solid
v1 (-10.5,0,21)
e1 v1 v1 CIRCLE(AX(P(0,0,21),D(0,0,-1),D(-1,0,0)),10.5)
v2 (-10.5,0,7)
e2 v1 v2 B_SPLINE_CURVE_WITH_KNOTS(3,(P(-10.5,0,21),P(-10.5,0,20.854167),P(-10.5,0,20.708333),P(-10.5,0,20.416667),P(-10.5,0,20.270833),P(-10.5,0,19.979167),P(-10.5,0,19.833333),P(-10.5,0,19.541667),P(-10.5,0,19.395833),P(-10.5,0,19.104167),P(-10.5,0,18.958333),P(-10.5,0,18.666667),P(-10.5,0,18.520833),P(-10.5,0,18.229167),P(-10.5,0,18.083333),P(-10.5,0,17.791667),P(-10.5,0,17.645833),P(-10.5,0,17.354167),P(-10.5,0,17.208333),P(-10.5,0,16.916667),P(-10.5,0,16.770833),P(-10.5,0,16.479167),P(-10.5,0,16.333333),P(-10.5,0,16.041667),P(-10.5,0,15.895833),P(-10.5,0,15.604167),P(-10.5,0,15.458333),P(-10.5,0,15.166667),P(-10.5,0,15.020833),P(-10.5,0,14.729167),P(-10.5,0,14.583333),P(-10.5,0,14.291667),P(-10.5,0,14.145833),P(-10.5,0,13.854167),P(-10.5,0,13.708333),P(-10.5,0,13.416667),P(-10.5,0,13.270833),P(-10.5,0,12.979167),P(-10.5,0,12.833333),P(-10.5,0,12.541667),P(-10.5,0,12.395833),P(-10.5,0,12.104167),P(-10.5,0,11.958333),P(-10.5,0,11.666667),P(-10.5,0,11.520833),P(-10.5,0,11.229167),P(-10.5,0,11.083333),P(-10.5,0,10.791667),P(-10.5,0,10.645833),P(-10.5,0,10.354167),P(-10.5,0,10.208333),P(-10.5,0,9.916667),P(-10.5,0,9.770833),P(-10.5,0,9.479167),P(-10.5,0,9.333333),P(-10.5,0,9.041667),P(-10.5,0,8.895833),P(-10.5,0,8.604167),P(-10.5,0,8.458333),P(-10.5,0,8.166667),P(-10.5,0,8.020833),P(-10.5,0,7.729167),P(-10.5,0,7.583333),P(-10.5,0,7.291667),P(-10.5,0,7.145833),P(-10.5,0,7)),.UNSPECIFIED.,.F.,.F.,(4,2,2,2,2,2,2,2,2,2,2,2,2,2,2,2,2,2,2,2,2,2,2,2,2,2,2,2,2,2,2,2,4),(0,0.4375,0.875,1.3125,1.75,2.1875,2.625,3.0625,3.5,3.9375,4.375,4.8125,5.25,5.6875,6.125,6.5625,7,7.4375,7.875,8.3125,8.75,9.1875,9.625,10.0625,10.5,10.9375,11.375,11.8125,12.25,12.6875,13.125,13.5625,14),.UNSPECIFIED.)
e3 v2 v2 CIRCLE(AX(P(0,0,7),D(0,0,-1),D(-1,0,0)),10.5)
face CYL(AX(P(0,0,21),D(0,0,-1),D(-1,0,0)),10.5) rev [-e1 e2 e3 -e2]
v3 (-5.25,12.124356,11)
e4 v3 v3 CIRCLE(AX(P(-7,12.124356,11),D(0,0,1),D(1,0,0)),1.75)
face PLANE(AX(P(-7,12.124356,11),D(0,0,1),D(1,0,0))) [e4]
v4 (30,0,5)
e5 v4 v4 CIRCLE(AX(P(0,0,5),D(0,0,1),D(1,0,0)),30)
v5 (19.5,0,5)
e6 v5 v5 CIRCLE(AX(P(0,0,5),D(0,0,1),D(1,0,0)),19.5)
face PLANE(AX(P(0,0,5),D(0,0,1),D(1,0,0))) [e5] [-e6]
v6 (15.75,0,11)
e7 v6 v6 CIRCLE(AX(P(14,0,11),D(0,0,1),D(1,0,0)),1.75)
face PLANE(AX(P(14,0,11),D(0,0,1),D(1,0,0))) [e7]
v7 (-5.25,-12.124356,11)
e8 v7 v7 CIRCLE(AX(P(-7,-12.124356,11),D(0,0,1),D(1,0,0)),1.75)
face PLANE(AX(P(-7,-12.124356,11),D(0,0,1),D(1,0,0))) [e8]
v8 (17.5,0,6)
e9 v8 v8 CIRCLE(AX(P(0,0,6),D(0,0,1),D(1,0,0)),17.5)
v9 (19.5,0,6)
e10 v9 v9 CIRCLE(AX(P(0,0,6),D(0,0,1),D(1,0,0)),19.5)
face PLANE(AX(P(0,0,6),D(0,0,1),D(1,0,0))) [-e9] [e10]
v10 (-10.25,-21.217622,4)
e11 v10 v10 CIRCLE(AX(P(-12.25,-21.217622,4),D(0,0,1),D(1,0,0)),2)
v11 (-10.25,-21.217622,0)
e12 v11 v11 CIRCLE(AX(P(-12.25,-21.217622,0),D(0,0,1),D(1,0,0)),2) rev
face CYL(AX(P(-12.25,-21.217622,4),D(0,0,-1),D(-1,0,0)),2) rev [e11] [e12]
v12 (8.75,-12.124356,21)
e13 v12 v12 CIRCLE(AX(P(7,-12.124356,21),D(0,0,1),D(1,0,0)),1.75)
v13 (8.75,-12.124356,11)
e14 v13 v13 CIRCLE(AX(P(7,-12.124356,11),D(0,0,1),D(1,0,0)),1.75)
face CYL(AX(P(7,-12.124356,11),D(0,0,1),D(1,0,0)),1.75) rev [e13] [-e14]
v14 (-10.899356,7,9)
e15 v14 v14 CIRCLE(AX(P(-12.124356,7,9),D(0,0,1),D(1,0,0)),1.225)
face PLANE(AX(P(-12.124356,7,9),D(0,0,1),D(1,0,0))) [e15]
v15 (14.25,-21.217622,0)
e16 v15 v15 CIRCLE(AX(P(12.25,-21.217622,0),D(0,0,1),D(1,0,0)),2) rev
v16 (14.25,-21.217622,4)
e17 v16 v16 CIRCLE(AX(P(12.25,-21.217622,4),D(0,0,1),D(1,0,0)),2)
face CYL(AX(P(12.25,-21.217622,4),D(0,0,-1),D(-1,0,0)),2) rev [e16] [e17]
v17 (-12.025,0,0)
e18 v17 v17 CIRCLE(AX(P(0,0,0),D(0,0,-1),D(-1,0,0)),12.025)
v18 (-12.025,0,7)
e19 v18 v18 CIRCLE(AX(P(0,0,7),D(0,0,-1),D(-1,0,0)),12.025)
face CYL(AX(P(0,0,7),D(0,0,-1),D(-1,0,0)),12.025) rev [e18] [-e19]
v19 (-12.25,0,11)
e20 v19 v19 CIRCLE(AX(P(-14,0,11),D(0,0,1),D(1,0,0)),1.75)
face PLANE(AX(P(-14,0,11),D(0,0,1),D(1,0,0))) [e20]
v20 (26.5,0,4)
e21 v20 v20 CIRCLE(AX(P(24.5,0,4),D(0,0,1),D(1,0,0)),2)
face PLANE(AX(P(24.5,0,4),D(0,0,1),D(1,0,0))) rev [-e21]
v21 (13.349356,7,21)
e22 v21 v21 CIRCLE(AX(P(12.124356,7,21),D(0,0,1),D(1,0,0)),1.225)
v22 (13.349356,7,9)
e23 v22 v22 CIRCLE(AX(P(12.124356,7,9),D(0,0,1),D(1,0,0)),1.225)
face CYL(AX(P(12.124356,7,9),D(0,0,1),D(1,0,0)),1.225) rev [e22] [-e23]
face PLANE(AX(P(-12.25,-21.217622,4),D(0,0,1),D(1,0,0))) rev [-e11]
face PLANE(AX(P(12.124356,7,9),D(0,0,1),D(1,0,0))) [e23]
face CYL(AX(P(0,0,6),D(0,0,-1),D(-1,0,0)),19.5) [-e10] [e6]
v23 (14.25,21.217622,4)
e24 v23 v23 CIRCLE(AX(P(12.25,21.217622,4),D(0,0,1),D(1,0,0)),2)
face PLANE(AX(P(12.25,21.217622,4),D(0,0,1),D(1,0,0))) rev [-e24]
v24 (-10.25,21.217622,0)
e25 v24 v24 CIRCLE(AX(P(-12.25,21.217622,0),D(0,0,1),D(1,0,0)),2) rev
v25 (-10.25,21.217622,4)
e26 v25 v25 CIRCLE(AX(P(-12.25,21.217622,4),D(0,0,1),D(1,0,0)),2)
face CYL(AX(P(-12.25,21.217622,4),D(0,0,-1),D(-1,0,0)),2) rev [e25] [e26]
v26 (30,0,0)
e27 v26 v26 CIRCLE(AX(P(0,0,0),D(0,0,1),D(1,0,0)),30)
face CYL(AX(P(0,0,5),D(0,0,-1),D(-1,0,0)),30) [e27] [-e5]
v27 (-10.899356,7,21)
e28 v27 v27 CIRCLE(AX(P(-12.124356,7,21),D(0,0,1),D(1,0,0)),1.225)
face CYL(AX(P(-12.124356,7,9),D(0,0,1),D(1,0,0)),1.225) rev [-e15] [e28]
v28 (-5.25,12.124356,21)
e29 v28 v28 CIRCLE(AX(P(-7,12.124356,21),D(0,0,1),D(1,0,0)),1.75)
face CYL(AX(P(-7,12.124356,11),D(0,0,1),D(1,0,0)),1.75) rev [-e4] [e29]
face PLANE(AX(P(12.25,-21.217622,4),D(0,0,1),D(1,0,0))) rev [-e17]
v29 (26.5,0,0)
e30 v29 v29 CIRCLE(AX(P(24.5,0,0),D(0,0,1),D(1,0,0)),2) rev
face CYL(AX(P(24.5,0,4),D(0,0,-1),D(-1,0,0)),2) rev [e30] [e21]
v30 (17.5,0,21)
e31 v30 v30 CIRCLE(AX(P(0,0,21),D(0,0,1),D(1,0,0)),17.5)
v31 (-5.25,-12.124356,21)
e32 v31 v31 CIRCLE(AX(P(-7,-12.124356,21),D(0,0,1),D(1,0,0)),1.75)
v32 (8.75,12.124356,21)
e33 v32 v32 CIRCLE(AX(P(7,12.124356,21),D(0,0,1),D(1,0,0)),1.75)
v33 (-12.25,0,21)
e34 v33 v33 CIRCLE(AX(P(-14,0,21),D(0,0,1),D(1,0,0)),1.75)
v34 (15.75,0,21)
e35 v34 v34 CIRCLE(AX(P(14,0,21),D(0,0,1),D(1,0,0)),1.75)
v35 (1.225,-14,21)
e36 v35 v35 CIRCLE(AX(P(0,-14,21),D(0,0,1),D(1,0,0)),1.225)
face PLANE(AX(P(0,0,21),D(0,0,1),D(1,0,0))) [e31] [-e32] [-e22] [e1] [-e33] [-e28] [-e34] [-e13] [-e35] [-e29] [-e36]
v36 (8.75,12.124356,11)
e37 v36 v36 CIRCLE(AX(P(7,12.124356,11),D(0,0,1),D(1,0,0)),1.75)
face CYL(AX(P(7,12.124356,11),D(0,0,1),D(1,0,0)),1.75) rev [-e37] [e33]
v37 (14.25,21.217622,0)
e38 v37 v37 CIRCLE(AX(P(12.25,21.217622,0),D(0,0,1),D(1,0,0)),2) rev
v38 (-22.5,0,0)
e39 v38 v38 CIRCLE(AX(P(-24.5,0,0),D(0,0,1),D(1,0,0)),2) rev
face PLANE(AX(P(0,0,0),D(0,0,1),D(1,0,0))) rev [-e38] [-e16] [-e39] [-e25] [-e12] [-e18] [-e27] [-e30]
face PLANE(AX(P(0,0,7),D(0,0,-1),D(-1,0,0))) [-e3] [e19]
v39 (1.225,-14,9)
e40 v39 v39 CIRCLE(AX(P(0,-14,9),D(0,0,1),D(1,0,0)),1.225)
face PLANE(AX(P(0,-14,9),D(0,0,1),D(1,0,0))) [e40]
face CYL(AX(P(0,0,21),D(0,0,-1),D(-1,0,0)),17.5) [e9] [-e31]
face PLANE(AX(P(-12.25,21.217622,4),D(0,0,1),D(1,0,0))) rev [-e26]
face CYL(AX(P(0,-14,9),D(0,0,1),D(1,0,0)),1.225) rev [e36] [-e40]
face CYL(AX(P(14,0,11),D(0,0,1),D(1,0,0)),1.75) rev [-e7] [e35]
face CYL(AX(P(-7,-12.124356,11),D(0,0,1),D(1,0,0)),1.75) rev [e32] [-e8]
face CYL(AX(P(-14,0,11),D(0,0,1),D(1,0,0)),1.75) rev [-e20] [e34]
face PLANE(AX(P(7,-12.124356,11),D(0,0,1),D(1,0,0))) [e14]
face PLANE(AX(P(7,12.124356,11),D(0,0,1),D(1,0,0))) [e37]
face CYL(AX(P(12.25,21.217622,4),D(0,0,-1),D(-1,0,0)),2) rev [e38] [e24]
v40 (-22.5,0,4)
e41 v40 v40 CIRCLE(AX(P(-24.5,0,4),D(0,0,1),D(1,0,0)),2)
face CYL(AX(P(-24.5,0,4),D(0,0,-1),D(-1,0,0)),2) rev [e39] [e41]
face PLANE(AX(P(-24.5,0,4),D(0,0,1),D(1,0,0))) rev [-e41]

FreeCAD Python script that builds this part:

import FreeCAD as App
import Part
import Sketcher

V = App.Vector
Q = App.Units.Quantity

doc = App.newDocument("Part")
body = doc.addObject("PartDesign::Body", "Body")

sketch1 = body.newObject("Sketcher::SketchObject", "Sketch")
sketch1.AttachmentSupport = (doc.getObject("XY_Plane"), [""])
sketch1.MapMode = "FlatFace"
sketch1.addGeometry(Part.Circle(V(0, 0, 0), V(0, 0, 1), 30), False)
sketch1.addConstraint([
    Sketcher.Constraint("Coincident", 0, 3, -1, 1),
    Sketcher.Constraint("Diameter", 0, Q("60 mm")),
])
pad1 = body.newObject("PartDesign::Pad", "Pad")
pad1.Profile = sketch1
pad1.Length = 5

sketch2 = body.newObject("Sketcher::SketchObject", "Sketch001")
sketch2.AttachmentSupport = (doc.getObject("XY_Plane"), [""])
sketch2.MapMode = "FlatFace"
sketch2.AttachmentOffset = App.Placement(V(0, 0, 5), App.Rotation())
sketch2.addGeometry(Part.Circle(V(0, 0, 0), V(0, 0, 1), 19.5), False)
sketch2.addConstraint([
    Sketcher.Constraint("Coincident", 0, 3, -1, 1),
    Sketcher.Constraint("Diameter", 0, Q("39 mm")),
])
pad2 = body.newObject("PartDesign::Pad", "Pad001")
pad2.Profile = sketch2
pad2.Length = 1

sketch3 = body.newObject("Sketcher::SketchObject", "Sketch002")
sketch3.AttachmentSupport = (doc.getObject("XY_Plane"), [""])
sketch3.MapMode = "FlatFace"
sketch3.AttachmentOffset = App.Placement(V(0, 0, 6), App.Rotation())
sketch3.addGeometry(Part.Circle(V(0, 0, 0), V(0, 0, 1), 17.5), False)
sketch3.addConstraint([
    Sketcher.Constraint("Coincident", 0, 3, -1, 1),
    Sketcher.Constraint("Diameter", 0, Q("35 mm")),
])
pad3 = body.newObject("PartDesign::Pad", "Pad002")
pad3.Profile = sketch3
pad3.Length = 15

sketch4 = body.newObject("Sketcher::SketchObject", "Sketch003")
sketch4.AttachmentSupport = (doc.getObject("XY_Plane"), [""])
sketch4.MapMode = "FlatFace"
sketch4.addGeometry(Part.Circle(V(0, 0, 0), V(0, 0, 1), 12.025), False)
sketch4.addConstraint([
    Sketcher.Constraint("Coincident", 0, 3, -1, 1),
    Sketcher.Constraint("Diameter", 0, Q("24.05 mm")),
])
pocket1 = body.newObject("PartDesign::Pocket", "Pocket")
pocket1.Profile = sketch4
pocket1.Length = 7
pocket1.Reversed = True

sketch5 = body.newObject("Sketcher::SketchObject", "Sketch004")
sketch5.AttachmentSupport = (doc.getObject("XY_Plane"), [""])
sketch5.MapMode = "FlatFace"
sketch5.AttachmentOffset = App.Placement(V(0, 0, 7), App.Rotation())
sketch5.addGeometry(Part.Circle(V(0, 0, 0), V(0, 0, 1), 10.5), False)
sketch5.addConstraint([
    Sketcher.Constraint("Coincident", 0, 3, -1, 1),
    Sketcher.Constraint("Diameter", 0, Q("21 mm")),
])
pocket2 = body.newObject("PartDesign::Pocket", "Pocket001")
pocket2.Profile = sketch5
pocket2.Type = "ThroughAll"
pocket2.Reversed = True

sketch6 = body.newObject("Sketcher::SketchObject", "Sketch005")
sketch6.AttachmentSupport = (doc.getObject("XY_Plane"), [""])
sketch6.MapMode = "FlatFace"
sketch6.addGeometry([
    Part.Circle(V(24.5, 0, 0), V(0, 0, 1), 2),
    Part.Circle(V(12.25, -21.217622, 0), V(0, 0, 1), 2),
    Part.Circle(V(-12.25, -21.217622, 0), V(0, 0, 1), 2),
    Part.Circle(V(-24.5, 0, 0), V(0, 0, 1), 2),
    Part.Circle(V(-12.25, 21.217622, 0), V(0, 0, 1), 2),
    Part.Circle(V(12.25, 21.217622, 0), V(0, 0, 1), 2),
], False)
sketch6.addConstraint([
    Sketcher.Constraint("Equal", 0, 1),
    Sketcher.Constraint("Equal", 1, 2),
    Sketcher.Constraint("Equal", 2, 3),
    Sketcher.Constraint("Equal", 3, 4),
    Sketcher.Constraint("Equal", 4, 5),
    Sketcher.Constraint("Symmetric", 0, 3, 3, 3, -1, 1),
    Sketcher.Constraint("Symmetric", 1, 3, 4, 3, -1, 1),
    Sketcher.Constraint("Symmetric", 2, 3, 5, 3, -1, 1),
    Sketcher.Constraint("Symmetric", 1, 3, 2, 3, -2),
    Sketcher.Constraint("PointOnObject", 0, 3, -1),
    Sketcher.Constraint("Diameter", 0, Q("4 mm")),
    Sketcher.Constraint("DistanceX", 3, 3, 0, 3, Q("49 mm")),
    Sketcher.Constraint("DistanceX", 2, 3, 1, 3, Q("24.5 mm")),
    Sketcher.Constraint("DistanceY", 1, 3, -1, 1, Q("21.217622 mm")),
])
pocket3 = body.newObject("PartDesign::Pocket", "Pocket002")
pocket3.Profile = sketch6
pocket3.Type = "TwoLengths"
pocket3.Length = 4
pocket3.Length2 = 4
pocket3.Reversed = True

sketch7 = body.newObject("Sketcher::SketchObject", "Sketch006")
sketch7.AttachmentSupport = (doc.getObject("XY_Plane"), [""])
sketch7.MapMode = "FlatFace"
sketch7.AttachmentOffset = App.Placement(V(0, 0, 21), App.Rotation())
sketch7.addGeometry([
    Part.Circle(V(14, 0, 0), V(0, 0, 1), 1.75),
    Part.Circle(V(7, -12.124356, 0), V(0, 0, 1), 1.75),
    Part.Circle(V(-7, -12.124356, 0), V(0, 0, 1), 1.75),
    Part.Circle(V(-14, 0, 0), V(0, 0, 1), 1.75),
    Part.Circle(V(-7, 12.124356, 0), V(0, 0, 1), 1.75),
    Part.Circle(V(7, 12.124356, 0), V(0, 0, 1), 1.75),
], False)
sketch7.addConstraint([
    Sketcher.Constraint("Equal", 0, 1),
    Sketcher.Constraint("Equal", 1, 2),
    Sketcher.Constraint("Equal", 2, 3),
    Sketcher.Constraint("Equal", 3, 4),
    Sketcher.Constraint("Equal", 4, 5),
    Sketcher.Constraint("Symmetric", 0, 3, 3, 3, -1, 1),
    Sketcher.Constraint("Symmetric", 1, 3, 4, 3, -1, 1),
    Sketcher.Constraint("Symmetric", 2, 3, 5, 3, -1, 1),
    Sketcher.Constraint("Symmetric", 1, 3, 2, 3, -2),
    Sketcher.Constraint("PointOnObject", 0, 3, -1),
    Sketcher.Constraint("Diameter", 0, Q("3.5 mm")),
    Sketcher.Constraint("DistanceX", -1, 1, 0, 3, Q("14 mm")),
    Sketcher.Constraint("DistanceX", -1, 1, 1, 3, Q("7 mm")),
    Sketcher.Constraint("DistanceY", 2, 3, 4, 3, Q("24.248711 mm")),
])
pocket4 = body.newObject("PartDesign::Pocket", "Pocket003")
pocket4.Profile = sketch7
pocket4.Length = 10

sketch8 = body.newObject("Sketcher::SketchObject", "Sketch007")
sketch8.AttachmentSupport = (doc.getObject("XY_Plane"), [""])
sketch8.MapMode = "FlatFace"
sketch8.AttachmentOffset = App.Placement(V(0, 0, 21), App.Rotation())
sketch8.addGeometry([
    Part.Circle(V(12.124356, 7, 0), V(0, 0, 1), 1.225),
    Part.Circle(V(0, -14, 0), V(0, 0, 1), 1.225),
    Part.Circle(V(-12.124356, 7, 0), V(0, 0, 1), 1.225),
], False)
sketch8.addConstraint([
    Sketcher.Constraint("Equal", 0, 1),
    Sketcher.Constraint("Equal", 1, 2),
    Sketcher.Constraint("Symmetric", 0, 3, 2, 3, -2),
    Sketcher.Constraint("PointOnObject", 1, 3, -2),
    Sketcher.Constraint("Diameter", 0, Q("2.45 mm")),
    Sketcher.Constraint("DistanceY", -1, 1, 0, 3, Q("7 mm")),
    Sketcher.Constraint("DistanceY", 1, 3, -1, 1, Q("14 mm")),
    Sketcher.Constraint("DistanceX", 2, 3, 0, 3, Q("24.248711 mm")),
])
pocket5 = body.newObject("PartDesign::Pocket", "Pocket004")
pocket5.Profile = sketch8
pocket5.Length = 12

doc.recompute()
